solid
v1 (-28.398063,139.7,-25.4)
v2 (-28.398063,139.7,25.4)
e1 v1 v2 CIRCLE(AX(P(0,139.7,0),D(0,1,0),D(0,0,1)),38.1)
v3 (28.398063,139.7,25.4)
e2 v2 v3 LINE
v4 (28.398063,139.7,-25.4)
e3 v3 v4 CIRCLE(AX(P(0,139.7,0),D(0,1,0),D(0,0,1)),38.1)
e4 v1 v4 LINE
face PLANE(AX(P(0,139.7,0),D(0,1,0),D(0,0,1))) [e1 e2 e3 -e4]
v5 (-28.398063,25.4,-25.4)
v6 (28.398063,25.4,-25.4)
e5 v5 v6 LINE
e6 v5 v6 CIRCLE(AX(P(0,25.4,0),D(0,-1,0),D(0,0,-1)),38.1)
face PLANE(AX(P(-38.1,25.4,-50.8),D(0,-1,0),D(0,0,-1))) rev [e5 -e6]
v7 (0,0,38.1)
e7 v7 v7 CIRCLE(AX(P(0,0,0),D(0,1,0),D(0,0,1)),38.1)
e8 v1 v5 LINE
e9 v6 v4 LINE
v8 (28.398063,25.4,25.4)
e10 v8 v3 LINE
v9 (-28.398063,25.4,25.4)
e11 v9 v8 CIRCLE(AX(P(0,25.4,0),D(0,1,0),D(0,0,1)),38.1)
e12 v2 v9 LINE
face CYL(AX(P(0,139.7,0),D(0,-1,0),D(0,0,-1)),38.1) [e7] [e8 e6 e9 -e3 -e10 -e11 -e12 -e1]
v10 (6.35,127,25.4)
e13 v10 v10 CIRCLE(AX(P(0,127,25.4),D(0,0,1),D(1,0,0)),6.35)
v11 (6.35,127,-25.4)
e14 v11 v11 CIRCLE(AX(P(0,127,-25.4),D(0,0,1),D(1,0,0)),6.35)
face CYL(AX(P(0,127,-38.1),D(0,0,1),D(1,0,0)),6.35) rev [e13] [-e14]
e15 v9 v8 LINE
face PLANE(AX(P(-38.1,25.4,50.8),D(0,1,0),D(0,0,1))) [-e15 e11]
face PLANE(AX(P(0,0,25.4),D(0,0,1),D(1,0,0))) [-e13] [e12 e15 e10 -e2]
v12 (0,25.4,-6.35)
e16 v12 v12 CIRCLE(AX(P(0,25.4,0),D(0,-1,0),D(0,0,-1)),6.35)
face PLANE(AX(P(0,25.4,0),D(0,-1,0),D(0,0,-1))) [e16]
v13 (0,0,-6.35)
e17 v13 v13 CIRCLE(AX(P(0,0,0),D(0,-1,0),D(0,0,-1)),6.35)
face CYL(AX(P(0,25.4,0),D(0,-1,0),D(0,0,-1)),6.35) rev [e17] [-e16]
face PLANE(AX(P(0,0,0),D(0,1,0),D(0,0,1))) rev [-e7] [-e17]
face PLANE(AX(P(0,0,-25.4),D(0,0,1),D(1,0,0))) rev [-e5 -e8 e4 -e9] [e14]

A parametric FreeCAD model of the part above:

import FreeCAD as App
import Part
import Sketcher

V = App.Vector
Q = App.Units.Quantity

doc = App.newDocument("Part")
body = doc.addObject("PartDesign::Body", "Body")

sketch1 = body.newObject("Sketcher::SketchObject", "Sketch")
sketch1.AttachmentSupport = (doc.getObject("XZ_Plane"), [""])
sketch1.MapMode = "FlatFace"
sketch1.addGeometry(Part.Circle(V(0, 0, 0), V(0, 0, 1), 38), False)
sketch1.addConstraint([
    Sketcher.Constraint("Coincident", 0, 3, -1, 1),
    Sketcher.Constraint("Diameter", 0, Q("3 in")),
])
pad1 = body.newObject("PartDesign::Pad", "Pad")
pad1.Profile = sketch1
pad1.Length = Q("5.5 in")
pad1.Reversed = True

sketch2 = body.newObject("Sketcher::SketchObject", "Sketch001")
sketch2.AttachmentSupport = (doc.getObject("XZ_Plane"), [""])
sketch2.MapMode = "FlatFace"
sketch2.addGeometry(Part.Circle(V(0, 0, 0), V(0, 0, 1), 6), False)
sketch2.addConstraint([
    Sketcher.Constraint("Coincident", 0, 3, -1, 1),
    Sketcher.Constraint("Diameter", 0, Q("0.5 in")),
])
pocket1 = body.newObject("PartDesign::Pocket", "Pocket")
pocket1.Profile = sketch2
pocket1.Length = Q("1 in")

sketch3 = body.newObject("Sketcher::SketchObject", "Sketch002")
sketch3.AttachmentSupport = (doc.getObject("XY_Plane"), [""])
sketch3.MapMode = "FlatFace"
sketch3.AttachmentOffset = App.Placement(V(0, 0, 1 * 25.4), App.Rotation())
sketch3.addGeometry([
    Part.LineSegment(V(-38, 140, 0), V(-38, 25, 0)),
    Part.LineSegment(V(-38, 25, 0), V(38, 25, 0)),
    Part.LineSegment(V(38, 25, 0), V(38, 140, 0)),
    Part.LineSegment(V(38, 140, 0), V(-38, 140, 0)),
], False)
sketch3.addConstraint([
    Sketcher.Constraint("Coincident", 0, 2, 1, 1),
    Sketcher.Constraint("Coincident", 1, 2, 2, 1),
    Sketcher.Constraint("Coincident", 2, 2, 3, 1),
    Sketcher.Constraint("Coincident", 3, 2, 0, 1),
    Sketcher.Constraint("Vertical", 0),
    Sketcher.Constraint("Horizontal", 1),
    Sketcher.Constraint("Vertical", 2),
    Sketcher.Constraint("Horizontal", 3),
    Sketcher.Constraint("DistanceX", 1, 1, 1, 2, Q("3 in")),
    Sketcher.Constraint("DistanceY", 0, 2, 0, 1, Q("4.5 in")),
    Sketcher.Constraint("DistanceY", -1, 1, 0, 2, Q("1 in")),
    Sketcher.Constraint("DistanceX", 0, 2, -1, 1, Q("1.5 in")),
])
pocket2 = body.newObject("PartDesign::Pocket", "Pocket001")
pocket2.Profile = sketch3
pocket2.Length = Q("1 in")
pocket2.Reversed = True

sketch4 = body.newObject("Sketcher::SketchObject", "Sketch003")
sketch4.AttachmentSupport = (doc.getObject("XY_Plane"), [""])
sketch4.MapMode = "FlatFace"
sketch4.AttachmentOffset = App.Placement(V(0, 0, -1 * 25.4), App.Rotation())
sketch4.addGeometry([
    Part.LineSegment(V(-38, 140, 0), V(-38, 25, 0)),
    Part.LineSegment(V(-38, 25, 0), V(38, 25, 0)),
    Part.LineSegment(V(38, 25, 0), V(38, 140, 0)),
    Part.LineSegment(V(38, 140, 0), V(-38, 140, 0)),
], False)
sketch4.addConstraint([
    Sketcher.Constraint("Coincident", 0, 2, 1, 1),
    Sketcher.Constraint("Coincident", 1, 2, 2, 1),
    Sketcher.Constraint("Coincident", 2, 2, 3, 1),
    Sketcher.Constraint("Coincident", 3, 2, 0, 1),
    Sketcher.Constraint("Vertical", 0),
    Sketcher.Constraint("Horizontal", 1),
    Sketcher.Constraint("Vertical", 2),
    Sketcher.Constraint("Horizontal", 3),
    Sketcher.Constraint("DistanceX", 1, 1, 1, 2, Q("3 in")),
    Sketcher.Constraint("DistanceY", 0, 2, 0, 1, Q("4.5 in")),
    Sketcher.Constraint("DistanceY", -1, 1, 0, 2, Q("1 in")),
    Sketcher.Constraint("DistanceX", 0, 2, -1, 1, Q("1.5 in")),
])
pocket3 = body.newObject("PartDesign::Pocket", "Pocket002")
pocket3.Profile = sketch4
pocket3.Length = Q("1 in")

sketch5 = body.newObject("Sketcher::SketchObject", "Sketch004")
sketch5.AttachmentSupport = (doc.getObject("XY_Plane"), [""])
sketch5.MapMode = "FlatFace"
sketch5.AttachmentOffset = App.Placement(V(0, 0, 1 * 25.4), App.Rotation())
sketch5.addGeometry(Part.Circle(V(0, 127, 0), V(0, 0, 1), 6), False)
sketch5.addConstraint([
    Sketcher.Constraint("PointOnObject", 0, 3, -2),
    Sketcher.Constraint("Diameter", 0, Q("0.5 in")),
    Sketcher.Constraint("DistanceY", -1, 1, 0, 3, Q("5 in")),
])
pocket4 = body.newObject("PartDesign::Pocket", "Pocket003")
pocket4.Profile = sketch5
pocket4.Type = "ThroughAll"

doc.recompute()
